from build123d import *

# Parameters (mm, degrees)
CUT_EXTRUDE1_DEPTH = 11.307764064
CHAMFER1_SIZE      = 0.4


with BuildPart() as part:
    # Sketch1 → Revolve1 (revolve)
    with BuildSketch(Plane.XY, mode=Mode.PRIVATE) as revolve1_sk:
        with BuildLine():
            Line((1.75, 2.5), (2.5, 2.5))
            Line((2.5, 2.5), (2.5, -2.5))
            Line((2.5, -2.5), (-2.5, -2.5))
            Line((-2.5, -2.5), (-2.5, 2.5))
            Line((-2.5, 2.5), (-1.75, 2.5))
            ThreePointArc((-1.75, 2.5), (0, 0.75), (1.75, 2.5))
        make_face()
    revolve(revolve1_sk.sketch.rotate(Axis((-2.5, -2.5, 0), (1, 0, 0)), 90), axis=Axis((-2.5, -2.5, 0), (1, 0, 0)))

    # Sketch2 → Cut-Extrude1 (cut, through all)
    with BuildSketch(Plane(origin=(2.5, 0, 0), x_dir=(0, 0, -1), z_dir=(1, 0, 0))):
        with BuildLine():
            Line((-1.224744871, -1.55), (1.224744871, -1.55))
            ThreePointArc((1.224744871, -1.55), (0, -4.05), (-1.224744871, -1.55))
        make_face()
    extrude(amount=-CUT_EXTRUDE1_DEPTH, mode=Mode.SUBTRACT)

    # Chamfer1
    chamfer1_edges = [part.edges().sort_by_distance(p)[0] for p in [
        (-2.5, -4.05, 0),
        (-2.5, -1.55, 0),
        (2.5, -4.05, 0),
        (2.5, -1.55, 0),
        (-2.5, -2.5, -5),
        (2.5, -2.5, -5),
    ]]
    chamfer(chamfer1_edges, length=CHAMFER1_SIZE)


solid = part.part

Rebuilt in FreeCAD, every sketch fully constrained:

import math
import FreeCAD as App
import Part
import Sketcher

V = App.Vector
Q = App.Units.Quantity


def edges_at(feature, points):
    """Names of the edges that pass closest to the given points."""
    edges = feature.Shape.Edges
    near = lambda p: min(range(len(edges)), key=lambda i: edges[i].distToShape(Part.Vertex(*p))[0])
    return sorted({f"Edge{near(p) + 1}" for p in points})

doc = App.newDocument("Part")
body = doc.addObject("PartDesign::Body", "Body")

# Sketch on XY plane
sketch1 = body.newObject("Sketcher::SketchObject", "Sketch")
sketch1.AttachmentSupport = (doc.getObject("XY_Plane"), [""])
sketch1.MapMode = "FlatFace"
sketch1.addGeometry([
    Part.LineSegment(V(2.5, 2.5, 0), V(1.8, 2.5, 0)),  # 0
    Part.ArcOfCircle(Part.Circle(V(0, 2.5, 0), V(0, 0, 1), 1.8), math.radians(180), math.radians(360)),  # 1
    Part.LineSegment(V(-1.8, 2.5, 0), V(-2.5, 2.5, 0)),  # 2
    Part.LineSegment(V(-2.5, 2.5, 0), V(-2.5, -2.5, 0)),  # 3
    Part.LineSegment(V(-2.5, -2.5, 0), V(2.5, -2.5, 0)),  # 4
    Part.LineSegment(V(2.5, -2.5, 0), V(2.5, 2.5, 0)),  # 5
], False)
sketch1.addGeometry(Part.LineSegment(V(-2.5, -2.5, 0), V(2.5, -2.5, 0)), True)  # axis
sketch1.addConstraint([
    Sketcher.Constraint("Coincident", 0, 2, 1, 2),
    Sketcher.Constraint("Coincident", 1, 1, 2, 1),
    Sketcher.Constraint("Coincident", 2, 2, 3, 1),
    Sketcher.Constraint("Coincident", 3, 2, 4, 1),
    Sketcher.Constraint("Coincident", 4, 2, 5, 1),
    Sketcher.Constraint("Coincident", 5, 2, 0, 1),
    Sketcher.Constraint("Horizontal", 0),
    Sketcher.Constraint("Horizontal", 2),
    Sketcher.Constraint("Vertical", 3),
    Sketcher.Constraint("Horizontal", 4),
    Sketcher.Constraint("Vertical", 5),
    Sketcher.Constraint("Horizontal", 6),
    Sketcher.Constraint("Coincident", 6, 1, 3, 2),
    Sketcher.Constraint("Symmetric", 2, 2, 4, 2, -1, 1),
    Sketcher.Constraint("Symmetric", 0, 2, 1, 1, -2),
    Sketcher.Constraint("Horizontal", 1, 3, 0, 2),
    Sketcher.Constraint("Vertical", 5, 2, 6, 2),
    Sketcher.Constraint("Equal", 6, 3),
    Sketcher.Constraint("DistanceX", 4, 1, 4, 2, Q("5 mm")),
    Sketcher.Constraint("Radius", 1, Q("1.75 mm")),
])
revolution = body.newObject("PartDesign::Revolution", "Revolution")
revolution.Profile = sketch1
revolution.ReferenceAxis = (sketch1, ["Axis0"])
revolution.Angle = 360

# Sketch on YZ plane
sketch2 = body.newObject("Sketcher::SketchObject", "Sketch001")
sketch2.AttachmentSupport = (doc.getObject("YZ_Plane"), [""])
sketch2.MapMode = "FlatFace"
sketch2.AttachmentOffset = App.Placement(V(0, 0, 2.5), App.Rotation())
sketch2.addGeometry([
    Part.LineSegment(V(-1.6, -1.2, 0), V(-1.6, 1.2, 0)),
    Part.ArcOfCircle(Part.Circle(V(-2.5, 0, 0), V(0, 0, 1), 1.6), math.radians(52), math.radians(308)),
], False)
sketch2.addConstraint([
    Sketcher.Constraint("Coincident", 0, 1, 1, 2),
    Sketcher.Constraint("Coincident", 1, 1, 0, 2),
    Sketcher.Constraint("Vertical", 0),
    Sketcher.Constraint("PointOnObject", 1, 3, -1),
    Sketcher.Constraint("Radius", 1, Q("1.55 mm")),
    Sketcher.Constraint("DistanceX", 1, 3, -1, 1, Q("2.5 mm")),
    Sketcher.Constraint("DistanceX", 0, 1, -1, 1, Q("1.55 mm")),
])
pocket1 = body.newObject("PartDesign::Pocket", "Pocket")
pocket1.Profile = sketch2
pocket1.Type = "ThroughAll"
doc.recompute()

chamfer = body.newObject("PartDesign::Chamfer", "Chamfer")
chamfer.Base = (pocket1, edges_at(pocket1, [
    (-2.5, -4.05, 0),
    (-2.5, -1.55, 0),
    (2.5, -4.05, 0),
    (2.5, -1.55, 0),
    (-2.5, -2.5, -5),
    (2.5, -2.5, -5),
]))
chamfer.Size = 0.4

doc.recompute()
